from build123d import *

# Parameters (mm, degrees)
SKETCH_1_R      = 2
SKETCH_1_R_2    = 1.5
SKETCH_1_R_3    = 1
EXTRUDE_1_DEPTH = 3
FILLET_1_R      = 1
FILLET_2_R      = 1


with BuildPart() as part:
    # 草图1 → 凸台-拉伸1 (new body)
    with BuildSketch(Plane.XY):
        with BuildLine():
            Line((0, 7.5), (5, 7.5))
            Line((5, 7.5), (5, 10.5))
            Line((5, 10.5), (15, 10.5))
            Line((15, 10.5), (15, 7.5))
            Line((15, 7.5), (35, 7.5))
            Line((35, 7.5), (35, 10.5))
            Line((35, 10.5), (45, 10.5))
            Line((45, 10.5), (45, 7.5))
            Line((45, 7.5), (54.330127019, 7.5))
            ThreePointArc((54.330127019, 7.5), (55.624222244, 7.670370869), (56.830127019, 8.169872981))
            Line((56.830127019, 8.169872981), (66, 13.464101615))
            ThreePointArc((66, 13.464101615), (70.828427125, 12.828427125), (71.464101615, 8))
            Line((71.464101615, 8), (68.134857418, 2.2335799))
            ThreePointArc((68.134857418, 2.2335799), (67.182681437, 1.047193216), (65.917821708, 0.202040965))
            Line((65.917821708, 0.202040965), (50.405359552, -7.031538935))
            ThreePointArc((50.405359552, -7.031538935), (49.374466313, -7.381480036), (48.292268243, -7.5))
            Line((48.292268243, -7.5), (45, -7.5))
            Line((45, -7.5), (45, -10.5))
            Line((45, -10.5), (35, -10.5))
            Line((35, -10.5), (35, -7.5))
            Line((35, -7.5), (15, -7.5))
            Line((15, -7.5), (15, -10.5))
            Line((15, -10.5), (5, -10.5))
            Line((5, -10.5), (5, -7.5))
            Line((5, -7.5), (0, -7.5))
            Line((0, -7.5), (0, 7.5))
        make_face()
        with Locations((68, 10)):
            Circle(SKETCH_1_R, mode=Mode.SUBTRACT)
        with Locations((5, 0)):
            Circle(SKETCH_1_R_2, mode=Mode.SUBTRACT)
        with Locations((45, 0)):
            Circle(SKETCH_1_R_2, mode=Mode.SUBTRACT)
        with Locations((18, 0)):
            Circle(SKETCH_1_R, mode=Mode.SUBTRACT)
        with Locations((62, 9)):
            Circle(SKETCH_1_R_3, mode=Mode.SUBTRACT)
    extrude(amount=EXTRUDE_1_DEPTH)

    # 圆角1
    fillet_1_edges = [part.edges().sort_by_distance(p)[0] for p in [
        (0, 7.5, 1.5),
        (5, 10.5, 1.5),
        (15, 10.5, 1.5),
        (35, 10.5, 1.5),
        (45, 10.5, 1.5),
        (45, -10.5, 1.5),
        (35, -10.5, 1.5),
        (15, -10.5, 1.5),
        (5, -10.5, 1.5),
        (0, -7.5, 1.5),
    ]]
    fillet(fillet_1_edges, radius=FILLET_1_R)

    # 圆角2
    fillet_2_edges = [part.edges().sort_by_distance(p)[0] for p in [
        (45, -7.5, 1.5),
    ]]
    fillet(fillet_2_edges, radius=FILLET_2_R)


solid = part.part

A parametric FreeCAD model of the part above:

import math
import FreeCAD as App
import Part
import Sketcher

V = App.Vector
Q = App.Units.Quantity


def edges_at(feature, points):
    """Names of the edges that pass closest to the given points."""
    edges = feature.Shape.Edges
    near = lambda p: min(range(len(edges)), key=lambda i: edges[i].distToShape(Part.Vertex(*p))[0])
    return sorted({f"Edge{near(p) + 1}" for p in points})

doc = App.newDocument("Part")
params = doc.addObject("Spreadsheet::Sheet", "Params")
for row, (alias, value) in enumerate([
    ("sketch1_diameter", "3 mm"),
    ("sketch1_diameter2", "4 mm"),
    ("sketch1_diameter3", "2 mm"),
    ("sketch1_radius", "5 mm"),
    ("sketch1_radius2", "4 mm"),
    ("pad1_length", "3 mm"),
    ("fillet_radius", "1 mm"),
    ("fillet2_radius", "1 mm"),
], start=1):
    params.set(f"A{row}", alias)
    params.set(f"B{row}", "=" + value)
    params.setAlias(f"B{row}", alias)

body = doc.addObject("PartDesign::Body", "Body")

# Sketch on XY plane
sketch1 = body.newObject("Sketcher::SketchObject", "Sketch")
sketch1.AttachmentSupport = (doc.getObject("XY_Plane"), [""])
sketch1.MapMode = "FlatFace"
sketch1.addGeometry([
    Part.LineSegment(V(5, 7.5, 0), V(0, 7.5, 0)),  # 0
    Part.LineSegment(V(0, 7.5, 0), V(0, -7.5, 0)),  # 1
    Part.LineSegment(V(0, -7.5, 0), V(5, -7.5, 0)),  # 2
    Part.LineSegment(V(5, -7.5, 0), V(5, -10.5, 0)),  # 3
    Part.LineSegment(V(5, -10.5, 0), V(15, -10.5, 0)),  # 4
    Part.LineSegment(V(15, -10.5, 0), V(15, -7.5, 0)),  # 5
    Part.LineSegment(V(15, -7.5, 0), V(35, -7.5, 0)),  # 6
    Part.LineSegment(V(35, -7.5, 0), V(35, -10.5, 0)),  # 7
    Part.LineSegment(V(35, -10.5, 0), V(45, -10.5, 0)),  # 8
    Part.LineSegment(V(45, -10.5, 0), V(45, -7.5, 0)),  # 9
    Part.LineSegment(V(45, -7.5, 0), V(48.3, -7.5, 0)),  # 10
    Part.ArcOfCircle(Part.Circle(V(48.3, -2.5, 0), V(0, 0, 1), 5), math.radians(-90), math.radians(-65)),  # 11
    Part.LineSegment(V(50.4, -7, 0), V(65.9, 0.2, 0)),  # 12
    Part.ArcOfCircle(Part.Circle(V(63.8, 4.7, 0), V(0, 0, 1), 5), math.radians(-65), math.radians(-30)),  # 13
    Part.LineSegment(V(68.1, 2.2, 0), V(71.5, 8, 0)),  # 14
    Part.ArcOfCircle(Part.Circle(V(68, 10, 0), V(0, 0, 1), 4), math.radians(-30), math.radians(120)),  # 15
    Part.LineSegment(V(66, 13.5, 0), V(56.8, 8.2, 0)),  # 16
    Part.ArcOfCircle(Part.Circle(V(54.3, 12.5, 0), V(0, 0, 1), 5), math.radians(-90), math.radians(-60)),  # 17
    Part.LineSegment(V(54.3, 7.5, 0), V(45, 7.5, 0)),  # 18
    Part.LineSegment(V(45, 7.5, 0), V(45, 10.5, 0)),  # 19
    Part.LineSegment(V(45, 10.5, 0), V(35, 10.5, 0)),  # 20
    Part.LineSegment(V(35, 10.5, 0), V(35, 7.5, 0)),  # 21
    Part.LineSegment(V(35, 7.5, 0), V(15, 7.5, 0)),  # 22
    Part.LineSegment(V(15, 7.5, 0), V(15, 10.5, 0)),  # 23
    Part.LineSegment(V(15, 10.5, 0), V(5, 10.5, 0)),  # 24
    Part.LineSegment(V(5, 10.5, 0), V(5, 7.5, 0)),  # 25
    Part.Circle(V(45, 0, 0), V(0, 0, 1), 1.5),  # 26
    Part.Circle(V(18, 0, 0), V(0, 0, 1), 2),  # 27
    Part.Circle(V(5, 0, 0), V(0, 0, 1), 1.5),  # 28
    Part.Circle(V(62, 9, 0), V(0, 0, 1), 1),  # 29
    Part.Circle(V(68, 10, 0), V(0, 0, 1), 2),  # 30
], False)
sketch1.addConstraint([
    Sketcher.Constraint("Coincident", 0, 2, 1, 1),
    Sketcher.Constraint("Coincident", 1, 2, 2, 1),
    Sketcher.Constraint("Coincident", 2, 2, 3, 1),
    Sketcher.Constraint("Coincident", 3, 2, 4, 1),
    Sketcher.Constraint("Coincident", 4, 2, 5, 1),
    Sketcher.Constraint("Coincident", 5, 2, 6, 1),
    Sketcher.Constraint("Coincident", 6, 2, 7, 1),
    Sketcher.Constraint("Coincident", 7, 2, 8, 1),
    Sketcher.Constraint("Coincident", 8, 2, 9, 1),
    Sketcher.Constraint("Coincident", 9, 2, 10, 1),
    Sketcher.Constraint("Tangent", 10, 2, 11, 1),
    Sketcher.Constraint("Tangent", 11, 2, 12, 1),
    Sketcher.Constraint("Tangent", 12, 2, 13, 1),
    Sketcher.Constraint("Tangent", 13, 2, 14, 1),
    Sketcher.Constraint("Tangent", 14, 2, 15, 1),
    Sketcher.Constraint("Tangent", 15, 2, 16, 1),
    Sketcher.Constraint("Tangent", 16, 2, 17, 2),
    Sketcher.Constraint("Tangent", 17, 1, 18, 1),
    Sketcher.Constraint("Coincident", 18, 2, 19, 1),
    Sketcher.Constraint("Coincident", 19, 2, 20, 1),
    Sketcher.Constraint("Coincident", 20, 2, 21, 1),
    Sketcher.Constraint("Coincident", 21, 2, 22, 1),
    Sketcher.Constraint("Coincident", 22, 2, 23, 1),
    Sketcher.Constraint("Coincident", 23, 2, 24, 1),
    Sketcher.Constraint("Coincident", 24, 2, 25, 1),
    Sketcher.Constraint("Coincident", 25, 2, 0, 1),
    Sketcher.Constraint("Horizontal", 0),
    Sketcher.Constraint("Vertical", 1),
    Sketcher.Constraint("Horizontal", 2),
    Sketcher.Constraint("Vertical", 3),
    Sketcher.Constraint("Horizontal", 4),
    Sketcher.Constraint("Vertical", 5),
    Sketcher.Constraint("Horizontal", 6),
    Sketcher.Constraint("Vertical", 7),
    Sketcher.Constraint("Horizontal", 8),
    Sketcher.Constraint("Vertical", 9),
    Sketcher.Constraint("Horizontal", 10),
    Sketcher.Constraint("Horizontal", 18),
    Sketcher.Constraint("Vertical", 19),
    Sketcher.Constraint("Horizontal", 20),
    Sketcher.Constraint("Vertical", 21),
    Sketcher.Constraint("Horizontal", 22),
    Sketcher.Constraint("Vertical", 23),
    Sketcher.Constraint("Horizontal", 24),
    Sketcher.Constraint("Vertical", 25),
    Sketcher.Constraint("Coincident", 30, 3, 15, 3),
    Sketcher.Constraint("Equal", 11, 13),
    Sketcher.Constraint("Equal", 13, 17),
    Sketcher.Constraint("Equal", 26, 28),
    Sketcher.Constraint("Equal", 27, 30),
    Sketcher.Constraint("Symmetric", 0, 2, 1, 2, -1, 1),
    Sketcher.Constraint("Symmetric", 9, 2, 18, 2, -1),
    Sketcher.Constraint("Symmetric", 7, 2, 20, 2, -1),
    Sketcher.Constraint("Symmetric", 5, 2, 22, 2, -1),
    Sketcher.Constraint("Symmetric", 3, 2, 24, 2, -1),
    Sketcher.Constraint("PointOnObject", 26, 3, -1),
    Sketcher.Constraint("PointOnObject", 27, 3, -1),
    Sketcher.Constraint("PointOnObject", 28, 3, -1),
    Sketcher.Constraint("Horizontal", 2, 2, 5, 2),
    Sketcher.Constraint("Horizontal", 4, 2, 7, 2),
    Sketcher.Constraint("Horizontal", 6, 2, 9, 2),
    Sketcher.Constraint("Vertical", 28, 3, 2, 2),
    Sketcher.Constraint("Vertical", 26, 3, 8, 2),
    Sketcher.Constraint("Equal", 4, 8),
    Sketcher.Constraint("Diameter", 26, Q("3 mm")),
    Sketcher.Constraint("Diameter", 27, Q("4 mm")),
    Sketcher.Constraint("Diameter", 29, Q("2 mm")),
    Sketcher.Constraint("Radius", 11, Q("5 mm")),
    Sketcher.Constraint("Radius", 15, Q("4 mm")),
    Sketcher.Constraint("DistanceX", 0, 2, 0, 1, Q("5 mm")),
    Sketcher.Constraint("DistanceX", 4, 1, 4, 2, Q("10 mm")),
    Sketcher.Constraint("DistanceX", 6, 1, 6, 2, Q("20 mm")),
    Sketcher.Constraint("DistanceY", 1, 2, 1, 1, Q("15 mm")),
    Sketcher.Constraint("DistanceY", 3, 2, 3, 1, Q("3 mm")),
    Sketcher.Constraint("Angle", 12, Q("25 deg")),
    Sketcher.Constraint("Angle", 14, Q("60 deg")),
    Sketcher.Constraint("Angle", 16, Q("-150 deg")),
    Sketcher.Constraint("DistanceX", -1, 1, 15, 3, Q("68 mm")),
    Sketcher.Constraint("DistanceY", -1, 1, 15, 3, Q("10 mm")),
    Sketcher.Constraint("DistanceX", -1, 1, 27, 3, Q("18 mm")),
    Sketcher.Constraint("DistanceX", -1, 1, 29, 3, Q("62 mm")),
    Sketcher.Constraint("DistanceY", -1, 1, 29, 3, Q("9 mm")),
    Sketcher.Constraint("DistanceX", 10, 1, 10, 2, Q("3.292268 mm")),
])
sketch1.setExpression("Constraints[64]", "Params.sketch1_diameter")
sketch1.setExpression("Constraints[65]", "Params.sketch1_diameter2")
sketch1.setExpression("Constraints[66]", "Params.sketch1_diameter3")
sketch1.setExpression("Constraints[67]", "Params.sketch1_radius")
sketch1.setExpression("Constraints[68]", "Params.sketch1_radius2")
pad1 = body.newObject("PartDesign::Pad", "Pad")
pad1.Profile = sketch1
pad1.setExpression("Length", "Params.pad1_length")
doc.recompute()

fillet = body.newObject("PartDesign::Fillet", "Fillet")
fillet.Base = (pad1, edges_at(pad1, [
    (0, 7.5, 1.5),
    (5, 10.5, 1.5),
    (15, 10.5, 1.5),
    (35, 10.5, 1.5),
    (45, 10.5, 1.5),
    (45, -10.5, 1.5),
    (35, -10.5, 1.5),
    (15, -10.5, 1.5),
    (5, -10.5, 1.5),
    (0, -7.5, 1.5),
]))
fillet.setExpression("Radius", "Params.fillet_radius")
doc.recompute()

fillet2 = body.newObject("PartDesign::Fillet", "Fillet001")
fillet2.Base = (fillet, edges_at(fillet, [(45, -7.5, 1.5)]))
fillet2.setExpression("Radius", "Params.fillet2_radius")

doc.recompute()
